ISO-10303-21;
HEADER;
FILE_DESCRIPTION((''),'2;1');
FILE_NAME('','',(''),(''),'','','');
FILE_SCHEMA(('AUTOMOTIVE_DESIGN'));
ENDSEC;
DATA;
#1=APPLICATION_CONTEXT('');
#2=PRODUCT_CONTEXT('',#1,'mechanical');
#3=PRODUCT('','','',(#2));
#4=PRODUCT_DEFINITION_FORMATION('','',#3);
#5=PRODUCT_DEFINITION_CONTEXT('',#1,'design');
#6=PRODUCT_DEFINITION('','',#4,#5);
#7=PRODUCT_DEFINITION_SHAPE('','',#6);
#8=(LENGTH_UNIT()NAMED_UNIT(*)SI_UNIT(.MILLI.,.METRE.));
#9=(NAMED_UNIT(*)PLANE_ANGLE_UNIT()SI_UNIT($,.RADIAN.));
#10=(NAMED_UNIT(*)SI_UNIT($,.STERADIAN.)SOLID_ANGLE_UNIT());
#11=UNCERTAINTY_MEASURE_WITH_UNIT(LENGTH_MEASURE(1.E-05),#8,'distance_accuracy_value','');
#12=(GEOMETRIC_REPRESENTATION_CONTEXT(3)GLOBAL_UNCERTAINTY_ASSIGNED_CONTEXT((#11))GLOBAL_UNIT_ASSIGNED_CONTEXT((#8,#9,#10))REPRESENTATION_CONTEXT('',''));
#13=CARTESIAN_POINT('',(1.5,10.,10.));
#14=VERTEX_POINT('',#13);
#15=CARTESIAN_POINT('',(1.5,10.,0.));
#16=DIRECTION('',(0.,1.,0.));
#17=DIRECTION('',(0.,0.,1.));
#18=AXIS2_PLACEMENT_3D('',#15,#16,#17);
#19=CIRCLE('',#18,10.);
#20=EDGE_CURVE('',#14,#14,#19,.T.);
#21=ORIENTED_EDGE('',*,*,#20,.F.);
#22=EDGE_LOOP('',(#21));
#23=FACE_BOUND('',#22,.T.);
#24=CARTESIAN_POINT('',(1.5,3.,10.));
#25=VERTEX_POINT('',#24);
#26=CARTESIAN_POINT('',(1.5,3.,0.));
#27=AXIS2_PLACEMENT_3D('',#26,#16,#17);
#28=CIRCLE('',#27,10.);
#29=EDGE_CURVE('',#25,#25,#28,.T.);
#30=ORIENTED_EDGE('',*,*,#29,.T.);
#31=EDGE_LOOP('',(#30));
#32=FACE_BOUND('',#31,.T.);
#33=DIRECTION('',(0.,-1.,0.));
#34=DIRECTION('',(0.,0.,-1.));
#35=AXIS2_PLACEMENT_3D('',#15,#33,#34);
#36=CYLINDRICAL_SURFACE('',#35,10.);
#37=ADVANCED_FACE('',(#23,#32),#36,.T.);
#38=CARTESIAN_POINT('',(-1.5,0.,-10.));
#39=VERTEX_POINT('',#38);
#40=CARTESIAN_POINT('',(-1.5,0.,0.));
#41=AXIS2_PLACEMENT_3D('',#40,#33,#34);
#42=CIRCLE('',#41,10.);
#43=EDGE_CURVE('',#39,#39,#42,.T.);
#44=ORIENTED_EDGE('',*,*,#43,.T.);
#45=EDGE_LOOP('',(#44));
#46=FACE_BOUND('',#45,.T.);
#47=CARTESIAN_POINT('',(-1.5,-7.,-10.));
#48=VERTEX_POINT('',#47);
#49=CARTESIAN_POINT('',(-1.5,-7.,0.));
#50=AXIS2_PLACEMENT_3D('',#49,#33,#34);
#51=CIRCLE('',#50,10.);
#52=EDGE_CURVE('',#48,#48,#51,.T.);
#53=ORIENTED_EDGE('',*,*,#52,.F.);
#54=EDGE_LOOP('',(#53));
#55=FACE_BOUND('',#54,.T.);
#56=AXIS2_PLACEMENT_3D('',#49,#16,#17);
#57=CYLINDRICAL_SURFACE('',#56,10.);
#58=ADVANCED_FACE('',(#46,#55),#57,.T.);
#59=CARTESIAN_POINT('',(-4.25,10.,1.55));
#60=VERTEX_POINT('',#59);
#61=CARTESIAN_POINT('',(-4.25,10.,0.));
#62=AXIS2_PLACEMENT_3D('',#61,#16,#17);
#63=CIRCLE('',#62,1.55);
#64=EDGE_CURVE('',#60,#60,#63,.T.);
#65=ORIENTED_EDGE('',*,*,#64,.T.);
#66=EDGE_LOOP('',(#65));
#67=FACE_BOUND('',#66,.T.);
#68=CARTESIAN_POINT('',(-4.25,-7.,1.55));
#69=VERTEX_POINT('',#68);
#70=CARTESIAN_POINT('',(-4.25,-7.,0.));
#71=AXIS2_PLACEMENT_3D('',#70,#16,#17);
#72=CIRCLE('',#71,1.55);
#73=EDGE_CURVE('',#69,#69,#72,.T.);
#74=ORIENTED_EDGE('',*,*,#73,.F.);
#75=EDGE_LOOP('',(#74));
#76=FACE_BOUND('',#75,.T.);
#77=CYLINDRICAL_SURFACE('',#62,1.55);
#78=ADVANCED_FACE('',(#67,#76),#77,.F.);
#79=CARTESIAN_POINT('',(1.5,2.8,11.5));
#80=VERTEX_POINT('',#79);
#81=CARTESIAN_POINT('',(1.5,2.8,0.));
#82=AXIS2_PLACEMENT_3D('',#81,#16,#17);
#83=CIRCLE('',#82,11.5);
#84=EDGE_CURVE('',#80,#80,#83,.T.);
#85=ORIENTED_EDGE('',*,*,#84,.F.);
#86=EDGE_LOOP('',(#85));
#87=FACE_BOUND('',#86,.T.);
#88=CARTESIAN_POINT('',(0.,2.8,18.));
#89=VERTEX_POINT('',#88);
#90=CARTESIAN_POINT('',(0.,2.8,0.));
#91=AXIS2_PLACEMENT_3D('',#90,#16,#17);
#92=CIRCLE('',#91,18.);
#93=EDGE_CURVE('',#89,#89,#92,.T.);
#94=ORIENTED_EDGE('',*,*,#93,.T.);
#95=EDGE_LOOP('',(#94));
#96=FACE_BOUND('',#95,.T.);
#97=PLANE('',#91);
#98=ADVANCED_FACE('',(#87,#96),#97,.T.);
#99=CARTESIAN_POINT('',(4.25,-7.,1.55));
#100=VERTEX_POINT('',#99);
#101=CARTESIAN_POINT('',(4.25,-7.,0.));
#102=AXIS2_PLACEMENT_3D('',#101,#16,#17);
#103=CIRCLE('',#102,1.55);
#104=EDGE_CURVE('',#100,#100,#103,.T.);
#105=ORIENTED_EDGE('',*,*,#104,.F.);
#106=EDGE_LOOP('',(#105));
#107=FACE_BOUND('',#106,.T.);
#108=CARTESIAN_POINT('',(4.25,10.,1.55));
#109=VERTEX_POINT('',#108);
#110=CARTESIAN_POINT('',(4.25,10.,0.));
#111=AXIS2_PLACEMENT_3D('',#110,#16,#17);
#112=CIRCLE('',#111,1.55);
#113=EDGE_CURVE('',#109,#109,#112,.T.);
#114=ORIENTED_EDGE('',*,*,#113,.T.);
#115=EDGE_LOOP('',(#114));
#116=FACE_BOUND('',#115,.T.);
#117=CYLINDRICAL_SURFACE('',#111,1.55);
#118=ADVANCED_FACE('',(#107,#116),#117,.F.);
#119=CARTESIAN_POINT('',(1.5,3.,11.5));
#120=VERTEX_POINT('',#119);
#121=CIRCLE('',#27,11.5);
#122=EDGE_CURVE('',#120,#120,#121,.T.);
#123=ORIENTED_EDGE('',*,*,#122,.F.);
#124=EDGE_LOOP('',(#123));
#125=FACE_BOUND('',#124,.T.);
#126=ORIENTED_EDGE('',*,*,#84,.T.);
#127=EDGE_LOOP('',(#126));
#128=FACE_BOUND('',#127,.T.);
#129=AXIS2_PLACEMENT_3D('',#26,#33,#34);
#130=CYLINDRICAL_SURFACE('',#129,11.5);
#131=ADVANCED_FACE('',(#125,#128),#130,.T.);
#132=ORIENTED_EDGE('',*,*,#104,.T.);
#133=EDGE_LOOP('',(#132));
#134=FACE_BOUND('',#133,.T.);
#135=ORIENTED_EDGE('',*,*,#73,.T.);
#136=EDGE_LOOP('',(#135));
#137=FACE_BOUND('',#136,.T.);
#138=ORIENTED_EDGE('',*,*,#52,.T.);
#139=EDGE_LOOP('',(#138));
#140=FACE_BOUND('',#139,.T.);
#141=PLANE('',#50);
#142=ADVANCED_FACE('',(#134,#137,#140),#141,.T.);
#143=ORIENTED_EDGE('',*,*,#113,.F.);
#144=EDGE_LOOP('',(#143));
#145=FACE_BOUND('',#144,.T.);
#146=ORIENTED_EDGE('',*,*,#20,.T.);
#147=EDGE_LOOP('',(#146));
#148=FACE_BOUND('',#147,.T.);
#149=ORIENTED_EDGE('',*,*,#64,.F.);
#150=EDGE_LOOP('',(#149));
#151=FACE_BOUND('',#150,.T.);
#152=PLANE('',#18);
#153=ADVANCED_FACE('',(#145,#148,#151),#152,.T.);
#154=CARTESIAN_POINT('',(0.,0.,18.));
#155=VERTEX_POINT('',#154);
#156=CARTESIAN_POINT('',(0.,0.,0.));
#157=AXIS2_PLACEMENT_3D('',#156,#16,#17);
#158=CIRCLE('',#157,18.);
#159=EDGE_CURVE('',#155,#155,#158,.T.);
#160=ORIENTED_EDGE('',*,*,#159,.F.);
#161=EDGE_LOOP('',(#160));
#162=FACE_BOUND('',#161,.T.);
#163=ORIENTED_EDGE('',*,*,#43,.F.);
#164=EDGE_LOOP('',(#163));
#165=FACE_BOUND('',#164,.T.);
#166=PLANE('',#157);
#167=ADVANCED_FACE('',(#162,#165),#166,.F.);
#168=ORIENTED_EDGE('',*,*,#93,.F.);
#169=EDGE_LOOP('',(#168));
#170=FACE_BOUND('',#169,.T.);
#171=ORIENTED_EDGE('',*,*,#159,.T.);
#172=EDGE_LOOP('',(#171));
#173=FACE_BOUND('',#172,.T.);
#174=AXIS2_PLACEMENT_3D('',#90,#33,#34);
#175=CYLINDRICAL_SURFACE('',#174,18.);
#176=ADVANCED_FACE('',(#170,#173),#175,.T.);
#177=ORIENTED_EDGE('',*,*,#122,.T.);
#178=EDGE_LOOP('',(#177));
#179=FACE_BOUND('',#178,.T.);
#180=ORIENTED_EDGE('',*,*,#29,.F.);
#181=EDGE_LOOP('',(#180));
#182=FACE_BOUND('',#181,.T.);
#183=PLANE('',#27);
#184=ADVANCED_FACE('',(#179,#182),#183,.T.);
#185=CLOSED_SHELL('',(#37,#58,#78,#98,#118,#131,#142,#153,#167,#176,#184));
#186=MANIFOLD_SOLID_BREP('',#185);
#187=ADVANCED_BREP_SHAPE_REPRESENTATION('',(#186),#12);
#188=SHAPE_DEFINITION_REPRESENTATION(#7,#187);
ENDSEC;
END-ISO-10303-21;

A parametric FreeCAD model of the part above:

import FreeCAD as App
import Part
import Sketcher
from FreeCAD import Vector

doc = App.newDocument("Part")
body = doc.addObject("PartDesign::Body", "Body")

sketch1 = doc.addObject("Sketcher::SketchObject", "Sketch")
body.addObject(sketch1)
sketch1.AttachmentSupport = (doc.XZ_Plane, [""])
sketch1.MapMode = "FlatFace"
sketch1.addGeometry(Part.Circle(Vector(0, 0, 0), Vector(0, 0, 1), 18), False)
sketch1.addConstraint(Sketcher.Constraint("Coincident", 0, 3, -1, 1))
sketch1.addConstraint(Sketcher.Constraint("Diameter", 0, 36.0))
pad1 = doc.addObject("PartDesign::Pad", "Pad")
body.addObject(pad1)
pad1.Profile = sketch1
pad1.Length = 2.8
pad1.Reversed = True

sketch2 = doc.addObject("Sketcher::SketchObject", "Sketch001")
body.addObject(sketch2)
sketch2.AttachmentSupport = (doc.XZ_Plane, [""])
sketch2.MapMode = "FlatFace"
sketch2.AttachmentOffset = App.Placement(Vector(0, 0, -2.8), App.Rotation())
sketch2.addGeometry(Part.Circle(Vector(2, 0, 0), Vector(0, 0, 1), 12), False)
sketch2.addConstraint(Sketcher.Constraint("PointOnObject", 0, 3, -1))
sketch2.addConstraint(Sketcher.Constraint("Diameter", 0, 23.0))
sketch2.addConstraint(Sketcher.Constraint("DistanceX", -1, 1, 0, 3, 1.5))
pad2 = doc.addObject("PartDesign::Pad", "Pad001")
body.addObject(pad2)
pad2.Profile = sketch2
pad2.Length = 0.2
pad2.Reversed = True

sketch3 = doc.addObject("Sketcher::SketchObject", "Sketch002")
body.addObject(sketch3)
sketch3.AttachmentSupport = (doc.XZ_Plane, [""])
sketch3.MapMode = "FlatFace"
sketch3.AttachmentOffset = App.Placement(Vector(0, 0, -3), App.Rotation())
sketch3.addGeometry(Part.Circle(Vector(2, 0, 0), Vector(0, 0, 1), 10), False)
sketch3.addConstraint(Sketcher.Constraint("PointOnObject", 0, 3, -1))
sketch3.addConstraint(Sketcher.Constraint("Diameter", 0, 20.0))
sketch3.addConstraint(Sketcher.Constraint("DistanceX", -1, 1, 0, 3, 1.5))
pad3 = doc.addObject("PartDesign::Pad", "Pad002")
body.addObject(pad3)
pad3.Profile = sketch3
pad3.Length = 7
pad3.Reversed = True

sketch4 = doc.addObject("Sketcher::SketchObject", "Sketch003")
body.addObject(sketch4)
sketch4.AttachmentSupport = (doc.XZ_Plane, [""])
sketch4.MapMode = "FlatFace"
sketch4.addGeometry(Part.Circle(Vector(-2, 0, 0), Vector(0, 0, 1), 10), False)
sketch4.addConstraint(Sketcher.Constraint("PointOnObject", 0, 3, -1))
sketch4.addConstraint(Sketcher.Constraint("Diameter", 0, 20.0))
sketch4.addConstraint(Sketcher.Constraint("DistanceX", 0, 3, -1, 1, 1.5))
pad4 = doc.addObject("PartDesign::Pad", "Pad003")
body.addObject(pad4)
pad4.Profile = sketch4
pad4.Length = 7

sketch5 = doc.addObject("Sketcher::SketchObject", "Sketch004")
body.addObject(sketch5)
sketch5.AttachmentSupport = (doc.XZ_Plane, [""])
sketch5.MapMode = "FlatFace"
sketch5.AttachmentOffset = App.Placement(Vector(0, 0, -10), App.Rotation())
sketch5.addGeometry(Part.Circle(Vector(4.2, 0, 0), Vector(0, 0, 1), 1.6), False)
sketch5.addGeometry(Part.Circle(Vector(-4.2, 0, 0), Vector(0, 0, 1), 1.6), False)
sketch5.addConstraint(Sketcher.Constraint("Equal", 0, 1))
sketch5.addConstraint(Sketcher.Constraint("Symmetric", 0, 3, 1, 3, -1, 1))
sketch5.addConstraint(Sketcher.Constraint("PointOnObject", 0, 3, -1))
sketch5.addConstraint(Sketcher.Constraint("Diameter", 0, 3.1))
sketch5.addConstraint(Sketcher.Constraint("DistanceX", 1, 3, 0, 3, 8.5))
doc.recompute()
hole = doc.addObject("PartDesign::Hole", "Hole")
body.addObject(hole)
hole.Profile = sketch5
hole.ThreadType = "None"
hole.Diameter = 3.1
hole.DepthType = "ThroughAll"
hole.Reversed = True

doc.recompute()
